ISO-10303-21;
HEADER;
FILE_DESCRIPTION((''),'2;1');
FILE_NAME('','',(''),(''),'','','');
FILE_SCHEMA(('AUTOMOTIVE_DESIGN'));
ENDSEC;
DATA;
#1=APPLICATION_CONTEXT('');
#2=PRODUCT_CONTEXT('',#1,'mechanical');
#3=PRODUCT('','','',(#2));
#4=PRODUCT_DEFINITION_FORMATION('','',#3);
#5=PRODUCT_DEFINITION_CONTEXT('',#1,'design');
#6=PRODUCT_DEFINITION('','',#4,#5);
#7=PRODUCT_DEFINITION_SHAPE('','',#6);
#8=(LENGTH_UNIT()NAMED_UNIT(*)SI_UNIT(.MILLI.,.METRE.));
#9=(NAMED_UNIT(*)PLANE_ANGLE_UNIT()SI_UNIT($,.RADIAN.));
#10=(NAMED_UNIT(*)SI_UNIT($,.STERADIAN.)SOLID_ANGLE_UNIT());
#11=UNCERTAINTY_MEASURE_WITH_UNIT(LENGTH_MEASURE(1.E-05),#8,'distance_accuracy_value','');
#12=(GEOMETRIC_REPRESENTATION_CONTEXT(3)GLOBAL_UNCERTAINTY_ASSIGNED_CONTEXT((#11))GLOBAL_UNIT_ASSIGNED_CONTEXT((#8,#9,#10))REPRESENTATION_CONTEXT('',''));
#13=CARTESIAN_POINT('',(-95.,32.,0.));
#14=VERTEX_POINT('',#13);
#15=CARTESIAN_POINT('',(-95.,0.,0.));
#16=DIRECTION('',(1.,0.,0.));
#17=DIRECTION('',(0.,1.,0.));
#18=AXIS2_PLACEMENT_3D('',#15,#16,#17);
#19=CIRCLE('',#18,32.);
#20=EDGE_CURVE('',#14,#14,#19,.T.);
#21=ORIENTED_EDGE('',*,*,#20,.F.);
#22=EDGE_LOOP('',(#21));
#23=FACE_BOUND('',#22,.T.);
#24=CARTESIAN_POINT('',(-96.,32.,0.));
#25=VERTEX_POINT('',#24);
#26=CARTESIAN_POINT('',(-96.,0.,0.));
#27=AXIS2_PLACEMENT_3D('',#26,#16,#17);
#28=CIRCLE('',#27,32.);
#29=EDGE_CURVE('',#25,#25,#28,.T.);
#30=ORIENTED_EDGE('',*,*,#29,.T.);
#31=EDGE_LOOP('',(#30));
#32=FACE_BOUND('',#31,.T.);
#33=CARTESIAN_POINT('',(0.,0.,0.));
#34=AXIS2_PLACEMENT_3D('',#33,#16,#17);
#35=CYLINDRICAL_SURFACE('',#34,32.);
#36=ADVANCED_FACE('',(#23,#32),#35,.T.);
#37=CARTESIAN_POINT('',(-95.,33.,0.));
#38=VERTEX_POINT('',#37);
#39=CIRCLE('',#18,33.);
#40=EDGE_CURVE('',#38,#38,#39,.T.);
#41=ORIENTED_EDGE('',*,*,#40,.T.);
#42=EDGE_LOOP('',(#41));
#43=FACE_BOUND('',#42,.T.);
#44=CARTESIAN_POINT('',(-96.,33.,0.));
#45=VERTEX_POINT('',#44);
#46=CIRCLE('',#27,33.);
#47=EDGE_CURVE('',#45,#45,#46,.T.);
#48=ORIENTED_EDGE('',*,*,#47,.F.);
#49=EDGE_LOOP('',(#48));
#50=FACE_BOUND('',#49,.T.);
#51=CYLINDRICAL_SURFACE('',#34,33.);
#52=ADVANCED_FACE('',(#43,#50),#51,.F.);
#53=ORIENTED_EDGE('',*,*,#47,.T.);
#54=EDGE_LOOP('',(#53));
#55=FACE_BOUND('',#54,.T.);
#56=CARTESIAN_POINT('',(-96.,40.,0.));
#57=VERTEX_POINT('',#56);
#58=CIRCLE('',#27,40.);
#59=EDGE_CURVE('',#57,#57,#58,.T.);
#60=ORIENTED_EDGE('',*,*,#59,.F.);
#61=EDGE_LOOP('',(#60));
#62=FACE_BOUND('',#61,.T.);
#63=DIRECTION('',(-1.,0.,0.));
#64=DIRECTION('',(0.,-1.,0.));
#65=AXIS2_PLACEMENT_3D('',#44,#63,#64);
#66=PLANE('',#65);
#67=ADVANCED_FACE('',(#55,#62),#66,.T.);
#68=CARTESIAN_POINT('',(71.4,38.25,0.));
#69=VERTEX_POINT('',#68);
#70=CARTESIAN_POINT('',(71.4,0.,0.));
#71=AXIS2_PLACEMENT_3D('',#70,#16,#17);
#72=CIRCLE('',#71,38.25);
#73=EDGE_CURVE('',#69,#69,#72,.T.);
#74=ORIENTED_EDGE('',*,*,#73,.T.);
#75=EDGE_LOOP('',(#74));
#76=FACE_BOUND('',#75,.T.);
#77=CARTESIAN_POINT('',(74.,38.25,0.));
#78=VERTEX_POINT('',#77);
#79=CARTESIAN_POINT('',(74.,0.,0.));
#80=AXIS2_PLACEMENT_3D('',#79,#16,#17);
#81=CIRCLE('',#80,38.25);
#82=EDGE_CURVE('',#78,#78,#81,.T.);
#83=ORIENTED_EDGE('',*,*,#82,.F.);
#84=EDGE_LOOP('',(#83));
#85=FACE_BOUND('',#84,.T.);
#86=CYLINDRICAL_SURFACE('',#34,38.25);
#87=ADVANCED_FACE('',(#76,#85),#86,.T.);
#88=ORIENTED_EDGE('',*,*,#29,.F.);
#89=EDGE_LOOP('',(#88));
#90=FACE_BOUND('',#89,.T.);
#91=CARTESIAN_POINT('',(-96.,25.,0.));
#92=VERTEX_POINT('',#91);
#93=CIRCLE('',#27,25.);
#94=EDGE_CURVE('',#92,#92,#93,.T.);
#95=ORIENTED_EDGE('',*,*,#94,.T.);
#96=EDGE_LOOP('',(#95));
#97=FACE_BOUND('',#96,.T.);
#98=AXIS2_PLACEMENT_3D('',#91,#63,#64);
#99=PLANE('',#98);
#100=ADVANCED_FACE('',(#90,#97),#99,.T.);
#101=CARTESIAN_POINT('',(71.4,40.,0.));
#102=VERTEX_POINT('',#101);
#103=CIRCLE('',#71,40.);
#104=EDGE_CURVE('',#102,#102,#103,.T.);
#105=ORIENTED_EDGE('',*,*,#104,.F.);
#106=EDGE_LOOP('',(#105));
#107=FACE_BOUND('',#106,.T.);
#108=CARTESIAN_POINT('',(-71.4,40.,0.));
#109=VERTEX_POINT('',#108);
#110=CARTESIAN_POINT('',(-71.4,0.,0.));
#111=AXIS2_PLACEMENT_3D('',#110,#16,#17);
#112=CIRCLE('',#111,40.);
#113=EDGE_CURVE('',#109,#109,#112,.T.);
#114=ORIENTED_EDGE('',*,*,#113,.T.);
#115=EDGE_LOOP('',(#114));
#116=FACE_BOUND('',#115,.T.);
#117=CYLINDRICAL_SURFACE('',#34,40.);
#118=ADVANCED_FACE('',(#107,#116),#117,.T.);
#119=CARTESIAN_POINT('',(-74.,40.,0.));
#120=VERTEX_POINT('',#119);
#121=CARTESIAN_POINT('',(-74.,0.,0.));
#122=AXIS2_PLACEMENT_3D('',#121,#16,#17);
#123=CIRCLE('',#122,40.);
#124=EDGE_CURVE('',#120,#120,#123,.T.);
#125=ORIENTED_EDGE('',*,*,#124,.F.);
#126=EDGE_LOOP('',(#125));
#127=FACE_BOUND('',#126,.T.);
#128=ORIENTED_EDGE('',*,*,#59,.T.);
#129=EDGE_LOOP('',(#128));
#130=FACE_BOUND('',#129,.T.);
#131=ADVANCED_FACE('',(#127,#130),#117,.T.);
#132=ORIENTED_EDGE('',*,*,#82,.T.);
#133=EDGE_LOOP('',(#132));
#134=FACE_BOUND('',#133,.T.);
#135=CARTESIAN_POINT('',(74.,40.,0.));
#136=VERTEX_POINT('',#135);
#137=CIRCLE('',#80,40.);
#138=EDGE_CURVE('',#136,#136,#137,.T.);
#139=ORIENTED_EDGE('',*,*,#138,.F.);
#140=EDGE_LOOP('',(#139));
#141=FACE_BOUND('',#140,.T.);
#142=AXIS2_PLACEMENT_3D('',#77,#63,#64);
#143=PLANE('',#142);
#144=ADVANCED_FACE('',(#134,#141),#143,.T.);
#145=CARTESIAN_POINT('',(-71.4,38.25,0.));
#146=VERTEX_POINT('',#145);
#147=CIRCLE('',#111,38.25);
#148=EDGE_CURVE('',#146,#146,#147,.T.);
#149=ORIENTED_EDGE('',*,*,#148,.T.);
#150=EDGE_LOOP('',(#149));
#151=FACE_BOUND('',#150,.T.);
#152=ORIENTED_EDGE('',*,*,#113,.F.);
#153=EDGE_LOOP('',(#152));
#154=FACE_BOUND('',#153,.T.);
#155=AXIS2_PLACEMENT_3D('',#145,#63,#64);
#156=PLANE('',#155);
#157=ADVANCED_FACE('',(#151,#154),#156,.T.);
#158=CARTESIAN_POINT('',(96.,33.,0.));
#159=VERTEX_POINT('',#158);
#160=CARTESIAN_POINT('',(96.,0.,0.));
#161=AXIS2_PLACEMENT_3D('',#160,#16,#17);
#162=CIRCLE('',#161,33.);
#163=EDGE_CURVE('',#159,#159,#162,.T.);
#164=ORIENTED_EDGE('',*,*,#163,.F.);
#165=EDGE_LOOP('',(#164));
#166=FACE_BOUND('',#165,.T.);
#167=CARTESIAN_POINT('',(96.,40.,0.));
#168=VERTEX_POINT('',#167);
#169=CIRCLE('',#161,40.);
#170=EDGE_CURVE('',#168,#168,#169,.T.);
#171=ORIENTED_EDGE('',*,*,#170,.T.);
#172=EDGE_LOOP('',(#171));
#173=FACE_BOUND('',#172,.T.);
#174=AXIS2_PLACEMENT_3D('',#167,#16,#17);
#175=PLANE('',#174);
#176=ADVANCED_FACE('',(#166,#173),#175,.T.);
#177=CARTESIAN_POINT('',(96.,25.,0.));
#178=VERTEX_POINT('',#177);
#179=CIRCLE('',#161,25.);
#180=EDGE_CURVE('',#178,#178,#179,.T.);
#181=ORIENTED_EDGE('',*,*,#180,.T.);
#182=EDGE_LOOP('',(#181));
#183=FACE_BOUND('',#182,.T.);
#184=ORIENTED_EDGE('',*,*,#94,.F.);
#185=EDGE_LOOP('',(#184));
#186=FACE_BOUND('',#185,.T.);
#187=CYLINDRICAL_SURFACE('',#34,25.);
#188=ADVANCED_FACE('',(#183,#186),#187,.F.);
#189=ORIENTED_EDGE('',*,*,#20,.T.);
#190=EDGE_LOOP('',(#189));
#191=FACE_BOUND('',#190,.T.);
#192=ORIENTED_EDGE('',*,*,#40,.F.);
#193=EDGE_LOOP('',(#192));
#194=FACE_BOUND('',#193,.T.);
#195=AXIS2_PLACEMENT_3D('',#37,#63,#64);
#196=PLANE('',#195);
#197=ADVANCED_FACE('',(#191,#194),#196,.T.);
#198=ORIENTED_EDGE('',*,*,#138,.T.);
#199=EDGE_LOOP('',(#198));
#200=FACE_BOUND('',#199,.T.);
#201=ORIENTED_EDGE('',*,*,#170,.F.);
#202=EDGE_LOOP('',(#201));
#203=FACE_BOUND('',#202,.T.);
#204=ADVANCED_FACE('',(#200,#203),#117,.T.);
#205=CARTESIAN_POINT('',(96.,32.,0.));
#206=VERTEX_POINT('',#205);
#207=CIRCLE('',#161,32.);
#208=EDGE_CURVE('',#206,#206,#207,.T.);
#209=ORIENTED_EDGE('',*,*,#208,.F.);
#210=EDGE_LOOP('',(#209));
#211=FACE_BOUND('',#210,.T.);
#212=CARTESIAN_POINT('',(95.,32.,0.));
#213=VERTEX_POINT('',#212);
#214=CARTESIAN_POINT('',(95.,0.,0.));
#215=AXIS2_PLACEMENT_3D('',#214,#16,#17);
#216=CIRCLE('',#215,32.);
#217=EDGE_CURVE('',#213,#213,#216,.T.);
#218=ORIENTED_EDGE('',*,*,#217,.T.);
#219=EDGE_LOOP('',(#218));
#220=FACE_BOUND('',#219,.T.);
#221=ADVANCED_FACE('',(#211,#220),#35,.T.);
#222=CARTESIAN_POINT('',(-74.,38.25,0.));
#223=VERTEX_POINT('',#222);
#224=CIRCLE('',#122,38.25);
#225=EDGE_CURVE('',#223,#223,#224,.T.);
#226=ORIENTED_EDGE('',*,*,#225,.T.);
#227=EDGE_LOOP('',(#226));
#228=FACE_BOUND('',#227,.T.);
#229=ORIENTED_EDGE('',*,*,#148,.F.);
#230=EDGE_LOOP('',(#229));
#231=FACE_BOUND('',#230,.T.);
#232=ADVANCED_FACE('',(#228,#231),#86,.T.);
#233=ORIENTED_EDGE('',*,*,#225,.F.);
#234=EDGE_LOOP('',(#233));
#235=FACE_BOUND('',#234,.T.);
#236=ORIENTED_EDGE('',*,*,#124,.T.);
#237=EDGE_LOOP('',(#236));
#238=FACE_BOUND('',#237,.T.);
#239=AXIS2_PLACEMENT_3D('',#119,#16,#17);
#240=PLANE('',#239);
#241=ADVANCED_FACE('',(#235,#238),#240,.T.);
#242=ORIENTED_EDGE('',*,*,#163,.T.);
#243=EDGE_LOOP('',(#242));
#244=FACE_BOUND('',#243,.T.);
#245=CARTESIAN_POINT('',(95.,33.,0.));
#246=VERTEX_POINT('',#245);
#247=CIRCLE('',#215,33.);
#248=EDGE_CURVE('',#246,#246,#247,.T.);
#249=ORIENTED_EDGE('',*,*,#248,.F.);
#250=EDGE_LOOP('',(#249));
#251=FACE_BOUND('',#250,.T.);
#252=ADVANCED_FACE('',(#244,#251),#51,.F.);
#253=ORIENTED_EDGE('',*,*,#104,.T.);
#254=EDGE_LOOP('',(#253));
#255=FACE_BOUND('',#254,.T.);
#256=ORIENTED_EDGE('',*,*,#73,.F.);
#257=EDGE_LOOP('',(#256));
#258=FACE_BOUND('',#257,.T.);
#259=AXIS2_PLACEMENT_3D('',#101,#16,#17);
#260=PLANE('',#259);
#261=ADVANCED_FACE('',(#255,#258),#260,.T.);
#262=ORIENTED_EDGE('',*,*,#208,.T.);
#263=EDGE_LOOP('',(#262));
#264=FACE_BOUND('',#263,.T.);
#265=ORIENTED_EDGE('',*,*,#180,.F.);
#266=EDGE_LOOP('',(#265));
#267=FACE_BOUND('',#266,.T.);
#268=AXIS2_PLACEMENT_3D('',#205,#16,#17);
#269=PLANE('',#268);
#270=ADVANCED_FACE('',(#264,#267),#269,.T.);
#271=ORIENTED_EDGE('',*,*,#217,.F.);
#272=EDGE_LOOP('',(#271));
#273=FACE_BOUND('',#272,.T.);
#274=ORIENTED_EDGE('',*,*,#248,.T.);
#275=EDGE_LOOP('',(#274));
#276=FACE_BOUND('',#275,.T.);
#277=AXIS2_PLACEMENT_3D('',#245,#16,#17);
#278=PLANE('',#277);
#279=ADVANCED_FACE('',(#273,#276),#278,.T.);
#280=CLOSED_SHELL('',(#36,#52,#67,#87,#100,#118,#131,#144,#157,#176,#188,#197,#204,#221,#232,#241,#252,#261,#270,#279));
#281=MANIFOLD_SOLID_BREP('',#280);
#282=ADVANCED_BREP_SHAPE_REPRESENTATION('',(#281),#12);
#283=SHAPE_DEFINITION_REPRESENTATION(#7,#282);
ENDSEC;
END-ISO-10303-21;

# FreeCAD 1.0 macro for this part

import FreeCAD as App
import Part
import Sketcher
from FreeCAD import Vector

doc = App.newDocument("Part")
body = doc.addObject("PartDesign::Body", "Body")

# Sketch on XY plane
sketch1 = body.newObject("Sketcher::SketchObject", "Sketch")
sketch1.AttachmentSupport = (doc.getObject("XY_Plane"), [""])
sketch1.MapMode = "FlatFace"
sketch1.addGeometry([
    Part.LineSegment(Vector(-74, 40, 0), Vector(-96, 40, 0)),  # 0
    Part.LineSegment(Vector(-96, 40, 0), Vector(-96, 33, 0)),  # 1
    Part.LineSegment(Vector(-96, 33, 0), Vector(-95, 33, 0)),  # 2
    Part.LineSegment(Vector(-95, 33, 0), Vector(-95, 32, 0)),  # 3
    Part.LineSegment(Vector(-95, 32, 0), Vector(-96, 32, 0)),  # 4
    Part.LineSegment(Vector(-96, 32, 0), Vector(-96, 25, 0)),  # 5
    Part.LineSegment(Vector(-96, 25, 0), Vector(96, 25, 0)),  # 6
    Part.LineSegment(Vector(96, 25, 0), Vector(96, 32, 0)),  # 7
    Part.LineSegment(Vector(96, 32, 0), Vector(95, 32, 0)),  # 8
    Part.LineSegment(Vector(95, 32, 0), Vector(95, 33, 0)),  # 9
    Part.LineSegment(Vector(95, 33, 0), Vector(96, 33, 0)),  # 10
    Part.LineSegment(Vector(96, 33, 0), Vector(96, 40, 0)),  # 11
    Part.LineSegment(Vector(96, 40, 0), Vector(74, 40, 0)),  # 12
    Part.LineSegment(Vector(74, 40, 0), Vector(74, 38.2, 0)),  # 13
    Part.LineSegment(Vector(74, 38.2, 0), Vector(71.4, 38.2, 0)),  # 14
    Part.LineSegment(Vector(71.4, 38.2, 0), Vector(71.4, 40, 0)),  # 15
    Part.LineSegment(Vector(71.4, 40, 0), Vector(-71.4, 40, 0)),  # 16
    Part.LineSegment(Vector(-71.4, 40, 0), Vector(-71.4, 38.2, 0)),  # 17
    Part.LineSegment(Vector(-71.4, 38.2, 0), Vector(-74, 38.2, 0)),  # 18
    Part.LineSegment(Vector(-74, 38.2, 0), Vector(-74, 40, 0)),  # 19
], False)
sketch1.addConstraint([
    Sketcher.Constraint("Coincident", 0, 2, 1, 1),
    Sketcher.Constraint("Coincident", 1, 2, 2, 1),
    Sketcher.Constraint("Coincident", 2, 2, 3, 1),
    Sketcher.Constraint("Coincident", 3, 2, 4, 1),
    Sketcher.Constraint("Coincident", 4, 2, 5, 1),
    Sketcher.Constraint("Coincident", 5, 2, 6, 1),
    Sketcher.Constraint("Coincident", 6, 2, 7, 1),
    Sketcher.Constraint("Coincident", 7, 2, 8, 1),
    Sketcher.Constraint("Coincident", 8, 2, 9, 1),
    Sketcher.Constraint("Coincident", 9, 2, 10, 1),
    Sketcher.Constraint("Coincident", 10, 2, 11, 1),
    Sketcher.Constraint("Coincident", 11, 2, 12, 1),
    Sketcher.Constraint("Coincident", 12, 2, 13, 1),
    Sketcher.Constraint("Coincident", 13, 2, 14, 1),
    Sketcher.Constraint("Coincident", 14, 2, 15, 1),
    Sketcher.Constraint("Coincident", 15, 2, 16, 1),
    Sketcher.Constraint("Coincident", 16, 2, 17, 1),
    Sketcher.Constraint("Coincident", 17, 2, 18, 1),
    Sketcher.Constraint("Coincident", 18, 2, 19, 1),
    Sketcher.Constraint("Coincident", 19, 2, 0, 1),
    Sketcher.Constraint("Horizontal", 0),
    Sketcher.Constraint("Vertical", 1),
    Sketcher.Constraint("Horizontal", 2),
    Sketcher.Constraint("Vertical", 3),
    Sketcher.Constraint("Horizontal", 4),
    Sketcher.Constraint("Vertical", 5),
    Sketcher.Constraint("Horizontal", 6),
    Sketcher.Constraint("Vertical", 7),
    Sketcher.Constraint("Horizontal", 8),
    Sketcher.Constraint("Vertical", 9),
    Sketcher.Constraint("Horizontal", 10),
    Sketcher.Constraint("Vertical", 11),
    Sketcher.Constraint("Horizontal", 12),
    Sketcher.Constraint("Vertical", 13),
    Sketcher.Constraint("Horizontal", 14),
    Sketcher.Constraint("Vertical", 15),
    Sketcher.Constraint("Horizontal", 16),
    Sketcher.Constraint("Vertical", 17),
    Sketcher.Constraint("Horizontal", 18),
    Sketcher.Constraint("Vertical", 19),
    Sketcher.Constraint("Symmetric", 4, 2, 7, 2, -2),
    Sketcher.Constraint("Symmetric", 2, 2, 9, 2, -2),
    Sketcher.Constraint("Symmetric", 0, 2, 11, 2, -2),
    Sketcher.Constraint("Symmetric", 14, 2, 17, 2, -2),
    Sketcher.Constraint("Horizontal", 12, 2, 15, 2),
    Sketcher.Constraint("Vertical", 1, 2, 4, 2),
    Sketcher.Constraint("Equal", 0, 12),
    Sketcher.Constraint("Equal", 10, 3),
    Sketcher.Constraint("Equal", 1, 5),
    Sketcher.Constraint("DistanceX", 0, 2, 0, 1, 22.0),
    Sketcher.Constraint("DistanceX", 2, 1, 2, 2, 1.0),
    Sketcher.Constraint("DistanceX", 6, 1, 6, 2, 192.0),
    Sketcher.Constraint("DistanceY", 1, 2, 1, 1, 7.0),
    Sketcher.Constraint("DistanceX", 14, 2, 14, 1, 2.6),
    Sketcher.Constraint("DistanceY", -1, 1, 0, 2, 40.0),
    Sketcher.Constraint("DistanceY", 13, 2, 13, 1, 1.75),
])
revolution = body.newObject("PartDesign::Revolution", "Revolution")
revolution.Profile = sketch1
revolution.ReferenceAxis = (sketch1, ["H_Axis"])
revolution.Angle = 360

doc.recompute()
